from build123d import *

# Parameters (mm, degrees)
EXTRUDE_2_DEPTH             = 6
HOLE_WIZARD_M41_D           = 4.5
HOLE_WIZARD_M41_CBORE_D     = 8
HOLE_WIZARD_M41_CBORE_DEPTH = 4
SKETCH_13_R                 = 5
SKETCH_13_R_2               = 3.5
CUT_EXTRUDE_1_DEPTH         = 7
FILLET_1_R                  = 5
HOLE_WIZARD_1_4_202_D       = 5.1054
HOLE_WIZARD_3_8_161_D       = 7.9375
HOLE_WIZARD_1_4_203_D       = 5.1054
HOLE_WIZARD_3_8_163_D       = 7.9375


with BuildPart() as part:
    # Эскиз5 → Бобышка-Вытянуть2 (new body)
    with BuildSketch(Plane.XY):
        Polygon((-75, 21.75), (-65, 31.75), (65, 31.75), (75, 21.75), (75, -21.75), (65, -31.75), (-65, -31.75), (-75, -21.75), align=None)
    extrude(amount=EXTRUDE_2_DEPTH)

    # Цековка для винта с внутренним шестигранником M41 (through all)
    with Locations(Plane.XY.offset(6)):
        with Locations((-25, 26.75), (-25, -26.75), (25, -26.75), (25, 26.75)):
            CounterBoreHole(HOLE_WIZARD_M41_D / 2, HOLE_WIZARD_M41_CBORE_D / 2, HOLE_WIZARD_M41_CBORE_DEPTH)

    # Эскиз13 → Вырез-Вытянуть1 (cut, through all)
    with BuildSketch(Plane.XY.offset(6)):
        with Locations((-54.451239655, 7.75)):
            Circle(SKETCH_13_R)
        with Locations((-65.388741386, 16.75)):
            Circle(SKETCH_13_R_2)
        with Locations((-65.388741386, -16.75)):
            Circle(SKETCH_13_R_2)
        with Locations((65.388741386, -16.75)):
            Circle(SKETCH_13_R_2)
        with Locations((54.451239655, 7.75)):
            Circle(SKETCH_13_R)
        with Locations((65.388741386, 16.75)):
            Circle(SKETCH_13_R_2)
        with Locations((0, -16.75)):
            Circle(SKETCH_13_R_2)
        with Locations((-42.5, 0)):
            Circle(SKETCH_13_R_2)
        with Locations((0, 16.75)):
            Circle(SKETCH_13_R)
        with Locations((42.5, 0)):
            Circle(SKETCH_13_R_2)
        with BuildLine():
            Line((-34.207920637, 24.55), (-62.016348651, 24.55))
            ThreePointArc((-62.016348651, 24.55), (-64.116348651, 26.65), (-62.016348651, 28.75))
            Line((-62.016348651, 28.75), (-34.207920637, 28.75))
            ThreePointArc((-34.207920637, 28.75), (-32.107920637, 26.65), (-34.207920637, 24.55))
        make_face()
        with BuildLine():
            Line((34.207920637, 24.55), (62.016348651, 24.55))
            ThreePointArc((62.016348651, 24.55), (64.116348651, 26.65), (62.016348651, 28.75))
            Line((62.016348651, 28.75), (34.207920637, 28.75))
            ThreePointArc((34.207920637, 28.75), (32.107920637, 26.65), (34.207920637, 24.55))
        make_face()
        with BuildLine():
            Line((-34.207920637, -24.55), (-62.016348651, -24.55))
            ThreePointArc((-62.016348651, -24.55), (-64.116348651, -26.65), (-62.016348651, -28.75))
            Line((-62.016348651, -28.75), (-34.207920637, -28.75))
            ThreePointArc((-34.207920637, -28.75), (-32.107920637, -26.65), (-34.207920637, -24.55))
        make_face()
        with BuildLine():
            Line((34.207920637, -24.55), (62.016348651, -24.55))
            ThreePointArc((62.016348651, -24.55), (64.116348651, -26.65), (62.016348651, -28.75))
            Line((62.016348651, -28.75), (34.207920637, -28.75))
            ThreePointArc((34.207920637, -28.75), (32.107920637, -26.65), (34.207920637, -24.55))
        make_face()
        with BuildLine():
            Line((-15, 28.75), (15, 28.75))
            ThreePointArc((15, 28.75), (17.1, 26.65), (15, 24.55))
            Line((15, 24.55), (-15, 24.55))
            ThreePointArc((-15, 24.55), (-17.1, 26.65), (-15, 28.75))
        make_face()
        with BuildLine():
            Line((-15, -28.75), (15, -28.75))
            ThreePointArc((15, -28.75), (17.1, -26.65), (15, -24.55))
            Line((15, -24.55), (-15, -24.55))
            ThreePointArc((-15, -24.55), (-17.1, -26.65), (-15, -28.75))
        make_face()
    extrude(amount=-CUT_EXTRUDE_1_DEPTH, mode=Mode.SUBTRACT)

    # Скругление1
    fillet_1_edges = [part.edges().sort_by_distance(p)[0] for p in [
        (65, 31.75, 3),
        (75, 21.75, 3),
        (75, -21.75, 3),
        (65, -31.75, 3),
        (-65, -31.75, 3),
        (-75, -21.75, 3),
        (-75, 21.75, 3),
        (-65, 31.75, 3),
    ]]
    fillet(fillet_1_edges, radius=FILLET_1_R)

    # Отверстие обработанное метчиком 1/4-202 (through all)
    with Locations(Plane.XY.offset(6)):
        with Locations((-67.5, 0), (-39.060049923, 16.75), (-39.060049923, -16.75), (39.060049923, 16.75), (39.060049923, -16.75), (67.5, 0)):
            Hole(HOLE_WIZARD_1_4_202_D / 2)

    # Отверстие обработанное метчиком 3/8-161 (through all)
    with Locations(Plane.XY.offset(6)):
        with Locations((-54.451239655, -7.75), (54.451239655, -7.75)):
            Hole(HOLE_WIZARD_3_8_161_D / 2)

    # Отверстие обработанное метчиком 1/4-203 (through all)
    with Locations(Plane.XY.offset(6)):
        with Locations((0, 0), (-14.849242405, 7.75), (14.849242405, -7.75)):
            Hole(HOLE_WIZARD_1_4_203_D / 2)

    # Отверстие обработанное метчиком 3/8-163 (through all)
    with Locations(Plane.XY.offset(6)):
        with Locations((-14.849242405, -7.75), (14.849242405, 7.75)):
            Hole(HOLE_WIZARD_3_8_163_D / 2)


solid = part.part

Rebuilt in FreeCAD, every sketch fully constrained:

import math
import FreeCAD as App
import Part
import Sketcher
Q = App.Units.Quantity


def edges_at(feature, points):
    """Names of the edges that pass closest to the given points."""
    edges = feature.Shape.Edges
    near = lambda p: min(range(len(edges)), key=lambda i: edges[i].distToShape(Part.Vertex(*p))[0])
    return sorted({f"Edge{near(p) + 1}" for p in points})

doc = App.newDocument("Part")
params = doc.addObject("Spreadsheet::Sheet", "Params")
for row, (alias, value) in enumerate([
    ("sketch1_width", "130 mm"),
    ("sketch1_height", "43.5 mm"),
    ("pad1_length", "6 mm"),
    ("sketch2_diameter", "4.5 mm"),
    ("hole_diameter", "4.5 mm"),
    ("hole_cbore_diameter", "8 mm"),
    ("hole_cbore_depth", "4 mm"),
    ("sketch3_diameter", "10 mm"),
    ("sketch3_diameter2", "7 mm"),
    ("sketch3_radius", "2.1 mm"),
    ("sketch3_width", "30 mm"),
    ("fillet_radius", "5 mm"),
    ("hole2_diameter", "5.1054 mm"),
    ("hole3_diameter", "7.9375 mm"),
    ("hole4_diameter", "5.1054 mm"),
    ("hole5_diameter", "7.9375 mm"),
], start=1):
    params.set(f"A{row}", alias)
    params.set(f"B{row}", "=" + value)
    params.setAlias(f"B{row}", alias)

body = doc.addObject("PartDesign::Body", "Body")

# Sketch on XY plane
sketch1 = body.newObject("Sketcher::SketchObject", "Sketch")
sketch1.AttachmentSupport = (doc.getObject("XY_Plane"), [""])
sketch1.MapMode = "FlatFace"
sketch1.addGeometry([
    Part.LineSegment(App.Vector(-65, 31.75, 0), App.Vector(-75, 21.75, 0)),  # 0
    Part.LineSegment(App.Vector(-75, 21.75, 0), App.Vector(-75, -21.75, 0)),  # 1
    Part.LineSegment(App.Vector(-75, -21.75, 0), App.Vector(-65, -31.75, 0)),  # 2
    Part.LineSegment(App.Vector(-65, -31.75, 0), App.Vector(65, -31.75, 0)),  # 3
    Part.LineSegment(App.Vector(65, -31.75, 0), App.Vector(75, -21.75, 0)),  # 4
    Part.LineSegment(App.Vector(75, -21.75, 0), App.Vector(75, 21.75, 0)),  # 5
    Part.LineSegment(App.Vector(75, 21.75, 0), App.Vector(65, 31.75, 0)),  # 6
    Part.LineSegment(App.Vector(65, 31.75, 0), App.Vector(-65, 31.75, 0)),  # 7
], False)
sketch1.addConstraint([
    Sketcher.Constraint("Coincident", 0, 2, 1, 1),
    Sketcher.Constraint("Coincident", 1, 2, 2, 1),
    Sketcher.Constraint("Coincident", 2, 2, 3, 1),
    Sketcher.Constraint("Coincident", 3, 2, 4, 1),
    Sketcher.Constraint("Coincident", 4, 2, 5, 1),
    Sketcher.Constraint("Coincident", 5, 2, 6, 1),
    Sketcher.Constraint("Coincident", 6, 2, 7, 1),
    Sketcher.Constraint("Coincident", 7, 2, 0, 1),
    Sketcher.Constraint("Vertical", 1),
    Sketcher.Constraint("Horizontal", 3),
    Sketcher.Constraint("Vertical", 5),
    Sketcher.Constraint("Horizontal", 7),
    Sketcher.Constraint("Symmetric", 0, 2, 4, 2, -1, 1),
    Sketcher.Constraint("Symmetric", 2, 2, 6, 2, -1, 1),
    Sketcher.Constraint("Perpendicular", 0, 2),
    Sketcher.Constraint("Perpendicular", 2, 4),
    Sketcher.Constraint("Perpendicular", 4, 6),
    Sketcher.Constraint("Horizontal", 1, 2, 4, 2),
    Sketcher.Constraint("Vertical", 3, 2, 6, 2),
    Sketcher.Constraint("DistanceX", 3, 1, 3, 2, Q("130 mm")),
    Sketcher.Constraint("DistanceY", 1, 2, 1, 1, Q("43.5 mm")),
    Sketcher.Constraint("DistanceX", 0, 2, -1, 1, Q("75 mm")),
])
sketch1.setExpression("Constraints[19]", "Params.sketch1_width")
sketch1.setExpression("Constraints[20]", "Params.sketch1_height")
pad1 = body.newObject("PartDesign::Pad", "Pad")
pad1.Profile = sketch1
pad1.setExpression("Length", "Params.pad1_length")

# Sketch on XY plane
sketch2 = body.newObject("Sketcher::SketchObject", "Sketch001")
sketch2.AttachmentSupport = (doc.getObject("XY_Plane"), [""])
sketch2.MapMode = "FlatFace"
sketch2.AttachmentOffset = App.Placement(App.Vector(0, 0, 6), App.Rotation())
sketch2.addGeometry([
    Part.Circle(App.Vector(-25, 26.75, 0), App.Vector(0, 0, 1), 2.25),
    Part.Circle(App.Vector(-25, -26.75, 0), App.Vector(0, 0, 1), 2.25),
    Part.Circle(App.Vector(25, -26.75, 0), App.Vector(0, 0, 1), 2.25),
    Part.Circle(App.Vector(25, 26.75, 0), App.Vector(0, 0, 1), 2.25),
], False)
sketch2.addConstraint([
    Sketcher.Constraint("Equal", 0, 1),
    Sketcher.Constraint("Equal", 1, 2),
    Sketcher.Constraint("Equal", 2, 3),
    Sketcher.Constraint("Symmetric", 0, 3, 2, 3, -1, 1),
    Sketcher.Constraint("Symmetric", 1, 3, 3, 3, -1, 1),
    Sketcher.Constraint("Symmetric", 1, 3, 2, 3, -2),
    Sketcher.Constraint("Diameter", 0, Q("4.5 mm")),
    Sketcher.Constraint("DistanceX", 0, 3, -1, 1, Q("25 mm")),
    Sketcher.Constraint("DistanceY", 1, 3, 0, 3, Q("53.5 mm")),
])
sketch2.setExpression("Constraints[6]", "Params.sketch2_diameter")
doc.recompute()
hole = body.newObject("PartDesign::Hole", "Hole")
hole.Profile = sketch2
hole.ThreadType = "None"
hole.setExpression("Diameter", "Params.hole_diameter")
hole.DepthType = "ThroughAll"
hole.HoleCutType = "Counterbore"
hole.setExpression("HoleCutDiameter", "Params.hole_cbore_diameter")
hole.setExpression("HoleCutDepth", "Params.hole_cbore_depth")

# Sketch on XY plane
sketch3 = body.newObject("Sketcher::SketchObject", "Sketch002")
sketch3.AttachmentSupport = (doc.getObject("XY_Plane"), [""])
sketch3.MapMode = "FlatFace"
sketch3.AttachmentOffset = App.Placement(App.Vector(0, 0, 6), App.Rotation())
sketch3.addGeometry([
    Part.Circle(App.Vector(-54.45124, 7.75, 0), App.Vector(0, 0, 1), 5),  # 0
    Part.Circle(App.Vector(-65.388741, 16.75, 0), App.Vector(0, 0, 1), 3.5),  # 1
    Part.Circle(App.Vector(-65.388741, -16.75, 0), App.Vector(0, 0, 1), 3.5),  # 2
    Part.Circle(App.Vector(65.388741, -16.75, 0), App.Vector(0, 0, 1), 3.5),  # 3
    Part.Circle(App.Vector(54.45124, 7.75, 0), App.Vector(0, 0, 1), 5),  # 4
    Part.Circle(App.Vector(65.388741, 16.75, 0), App.Vector(0, 0, 1), 3.5),  # 5
    Part.Circle(App.Vector(0, -16.75, 0), App.Vector(0, 0, 1), 3.5),  # 6
    Part.Circle(App.Vector(-42.5, 0, 0), App.Vector(0, 0, 1), 3.5),  # 7
    Part.Circle(App.Vector(0, 16.75, 0), App.Vector(0, 0, 1), 5),  # 8
    Part.Circle(App.Vector(42.5, 0, 0), App.Vector(0, 0, 1), 3.5),  # 9
    Part.LineSegment(App.Vector(-62.016349, 24.55, 0), App.Vector(-34.207921, 24.55, 0)),  # 10
    Part.ArcOfCircle(Part.Circle(App.Vector(-34.207921, 26.65, 0), App.Vector(0, 0, 1), 2.1), math.radians(-90), math.radians(90)),  # 11
    Part.LineSegment(App.Vector(-34.207921, 28.75, 0), App.Vector(-62.016349, 28.75, 0)),  # 12
    Part.ArcOfCircle(Part.Circle(App.Vector(-62.016349, 26.65, 0), App.Vector(0, 0, 1), 2.1), math.radians(90), math.radians(270)),  # 13
    Part.LineSegment(App.Vector(34.207921, 24.55, 0), App.Vector(62.016349, 24.55, 0)),  # 14
    Part.ArcOfCircle(Part.Circle(App.Vector(62.016349, 26.65, 0), App.Vector(0, 0, 1), 2.1), math.radians(-90), math.radians(90)),  # 15
    Part.LineSegment(App.Vector(62.016349, 28.75, 0), App.Vector(34.207921, 28.75, 0)),  # 16
    Part.ArcOfCircle(Part.Circle(App.Vector(34.207921, 26.65, 0), App.Vector(0, 0, 1), 2.1), math.radians(90), math.radians(270)),  # 17
    Part.LineSegment(App.Vector(-34.207921, -24.55, 0), App.Vector(-62.016349, -24.55, 0)),  # 18
    Part.ArcOfCircle(Part.Circle(App.Vector(-62.016349, -26.65, 0), App.Vector(0, 0, 1), 2.1), math.radians(90), math.radians(270)),  # 19
    Part.LineSegment(App.Vector(-62.016349, -28.75, 0), App.Vector(-34.207921, -28.75, 0)),  # 20
    Part.ArcOfCircle(Part.Circle(App.Vector(-34.207921, -26.65, 0), App.Vector(0, 0, 1), 2.1), math.radians(-90), math.radians(90)),  # 21
    Part.LineSegment(App.Vector(62.016349, -24.55, 0), App.Vector(34.207921, -24.55, 0)),  # 22
    Part.ArcOfCircle(Part.Circle(App.Vector(34.207921, -26.65, 0), App.Vector(0, 0, 1), 2.1), math.radians(90), math.radians(270)),  # 23
    Part.LineSegment(App.Vector(34.207921, -28.75, 0), App.Vector(62.016349, -28.75, 0)),  # 24
    Part.ArcOfCircle(Part.Circle(App.Vector(62.016349, -26.65, 0), App.Vector(0, 0, 1), 2.1), math.radians(-90), math.radians(90)),  # 25
    Part.LineSegment(App.Vector(15, 28.75, 0), App.Vector(-15, 28.75, 0)),  # 26
    Part.ArcOfCircle(Part.Circle(App.Vector(-15, 26.65, 0), App.Vector(0, 0, 1), 2.1), math.radians(90), math.radians(270)),  # 27
    Part.LineSegment(App.Vector(-15, 24.55, 0), App.Vector(15, 24.55, 0)),  # 28
    Part.ArcOfCircle(Part.Circle(App.Vector(15, 26.65, 0), App.Vector(0, 0, 1), 2.1), math.radians(-90), math.radians(90)),  # 29
    Part.LineSegment(App.Vector(-15, -28.75, 0), App.Vector(15, -28.75, 0)),  # 30
    Part.ArcOfCircle(Part.Circle(App.Vector(15, -26.65, 0), App.Vector(0, 0, 1), 2.1), math.radians(-90), math.radians(90)),  # 31
    Part.LineSegment(App.Vector(15, -24.55, 0), App.Vector(-15, -24.55, 0)),  # 32
    Part.ArcOfCircle(Part.Circle(App.Vector(-15, -26.65, 0), App.Vector(0, 0, 1), 2.1), math.radians(90), math.radians(270)),  # 33
], False)
sketch3.addConstraint([
    Sketcher.Constraint("Tangent", 10, 2, 11, 1),
    Sketcher.Constraint("Tangent", 11, 2, 12, 1),
    Sketcher.Constraint("Tangent", 12, 2, 13, 1),
    Sketcher.Constraint("Tangent", 13, 2, 10, 1),
    Sketcher.Constraint("Tangent", 14, 2, 15, 1),
    Sketcher.Constraint("Tangent", 15, 2, 16, 1),
    Sketcher.Constraint("Tangent", 16, 2, 17, 1),
    Sketcher.Constraint("Tangent", 17, 2, 14, 1),
    Sketcher.Constraint("Tangent", 18, 2, 19, 1),
    Sketcher.Constraint("Tangent", 19, 2, 20, 1),
    Sketcher.Constraint("Tangent", 20, 2, 21, 1),
    Sketcher.Constraint("Tangent", 21, 2, 18, 1),
    Sketcher.Constraint("Tangent", 22, 2, 23, 1),
    Sketcher.Constraint("Tangent", 23, 2, 24, 1),
    Sketcher.Constraint("Tangent", 24, 2, 25, 1),
    Sketcher.Constraint("Tangent", 25, 2, 22, 1),
    Sketcher.Constraint("Tangent", 26, 2, 27, 1),
    Sketcher.Constraint("Tangent", 27, 2, 28, 1),
    Sketcher.Constraint("Tangent", 28, 2, 29, 1),
    Sketcher.Constraint("Tangent", 29, 2, 26, 1),
    Sketcher.Constraint("Tangent", 30, 2, 31, 1),
    Sketcher.Constraint("Tangent", 31, 2, 32, 1),
    Sketcher.Constraint("Tangent", 32, 2, 33, 1),
    Sketcher.Constraint("Tangent", 33, 2, 30, 1),
    Sketcher.Constraint("Horizontal", 10),
    Sketcher.Constraint("Horizontal", 12),
    Sketcher.Constraint("Horizontal", 14),
    Sketcher.Constraint("Horizontal", 16),
    Sketcher.Constraint("Horizontal", 18),
    Sketcher.Constraint("Horizontal", 20),
    Sketcher.Constraint("Horizontal", 22),
    Sketcher.Constraint("Horizontal", 24),
    Sketcher.Constraint("Horizontal", 26),
    Sketcher.Constraint("Horizontal", 28),
    Sketcher.Constraint("Horizontal", 30),
    Sketcher.Constraint("Horizontal", 32),
    Sketcher.Constraint("Equal", 1, 2),
    Sketcher.Constraint("Equal", 2, 3),
    Sketcher.Constraint("Equal", 0, 4),
    Sketcher.Constraint("Equal", 3, 5),
    Sketcher.Constraint("Equal", 5, 6),
    Sketcher.Constraint("Equal", 6, 7),
    Sketcher.Constraint("Equal", 4, 8),
    Sketcher.Constraint("Equal", 7, 9),
    Sketcher.Constraint("Equal", 13, 15),
    Sketcher.Constraint("Equal", 17, 19),
    Sketcher.Constraint("Equal", 21, 23),
    Sketcher.Constraint("Equal", 25, 27),
    Sketcher.Constraint("Equal", 29, 31),
    Sketcher.Constraint("Symmetric", 1, 3, 3, 3, -1, 1),
    Sketcher.Constraint("Symmetric", 2, 3, 5, 3, -1, 1),
    Sketcher.Constraint("Symmetric", 6, 3, 8, 3, -1, 1),
    Sketcher.Constraint("Symmetric", 7, 3, 9, 3, -1, 1),
    Sketcher.Constraint("Symmetric", 15, 3, 19, 3, -1, 1),
    Sketcher.Constraint("Symmetric", 11, 3, 23, 3, -1, 1),
    Sketcher.Constraint("Symmetric", 27, 3, 31, 3, -1, 1),
    Sketcher.Constraint("Symmetric", 2, 3, 3, 3, -2),
    Sketcher.Constraint("Symmetric", 0, 3, 4, 3, -2),
    Sketcher.Constraint("Symmetric", 13, 3, 15, 3, -2),
    Sketcher.Constraint("PointOnObject", 6, 3, -2),
    Sketcher.Constraint("PointOnObject", 7, 3, -1),
    Sketcher.Constraint("Horizontal", 3, 3, 6, 3),
    Sketcher.Constraint("Horizontal", 17, 3, 27, 3),
    Sketcher.Constraint("Vertical", 11, 3, 21, 3),
    Sketcher.Constraint("Vertical", 17, 3, 23, 3),
    Sketcher.Constraint("Vertical", 15, 3, 25, 3),
    Sketcher.Constraint("Vertical", 29, 3, 31, 3),
    Sketcher.Constraint("Vertical", 27, 3, 33, 3),
    Sketcher.Constraint("Diameter", 0, Q("10 mm")),
    Sketcher.Constraint("Diameter", 1, Q("7 mm")),
    Sketcher.Constraint("Radius", 11, Q("2.1 mm")),
    Sketcher.Constraint("DistanceX", 26, 2, 26, 1, Q("30 mm")),
    Sketcher.Constraint("DistanceY", 0, 3, 1, 3, Q("9 mm")),
    Sketcher.Constraint("DistanceY", 0, 3, 11, 2, Q("21 mm")),
    Sketcher.Constraint("DistanceX", 7, 3, -1, 1, Q("42.5 mm")),
    Sketcher.Constraint("DistanceY", 2, 3, 0, 3, Q("24.5 mm")),
    Sketcher.Constraint("DistanceX", 10, 1, 10, 2, Q("27.808428 mm")),
    Sketcher.Constraint("DistanceX", 1, 3, 0, 3, Q("10.937502 mm")),
    Sketcher.Constraint("DistanceX", 0, 3, -1, 1, Q("54.45124 mm")),
    Sketcher.Constraint("DistanceX", 11, 3, -1, 1, Q("34.207921 mm")),
])
sketch3.setExpression("Constraints[68]", "Params.sketch3_diameter")
sketch3.setExpression("Constraints[69]", "Params.sketch3_diameter2")
sketch3.setExpression("Constraints[70]", "Params.sketch3_radius")
sketch3.setExpression("Constraints[71]", "Params.sketch3_width")
pocket1 = body.newObject("PartDesign::Pocket", "Pocket")
pocket1.Profile = sketch3
pocket1.Type = "ThroughAll"
doc.recompute()

fillet = body.newObject("PartDesign::Fillet", "Fillet")
fillet.Base = (pocket1, edges_at(pocket1, [
    (65, 31.75, 3),
    (75, 21.75, 3),
    (75, -21.75, 3),
    (65, -31.75, 3),
    (-65, -31.75, 3),
    (-75, -21.75, 3),
    (-75, 21.75, 3),
    (-65, 31.75, 3),
]))
fillet.setExpression("Radius", "Params.fillet_radius")

# Sketch on XY plane
sketch4 = body.newObject("Sketcher::SketchObject", "Sketch003")
sketch4.AttachmentSupport = (doc.getObject("XY_Plane"), [""])
sketch4.MapMode = "FlatFace"
sketch4.AttachmentOffset = App.Placement(App.Vector(0, 0, 6), App.Rotation())
sketch4.addGeometry([
    Part.Circle(App.Vector(-67.5, 0, 0), App.Vector(0, 0, 1), 2.5527),  # 0
    Part.Circle(App.Vector(-39.06005, 16.75, 0), App.Vector(0, 0, 1), 2.5527),  # 1
    Part.Circle(App.Vector(-39.06005, -16.75, 0), App.Vector(0, 0, 1), 2.5527),  # 2
    Part.Circle(App.Vector(39.06005, 16.75, 0), App.Vector(0, 0, 1), 2.5527),  # 3
    Part.Circle(App.Vector(39.06005, -16.75, 0), App.Vector(0, 0, 1), 2.5527),  # 4
    Part.Circle(App.Vector(67.5, 0, 0), App.Vector(0, 0, 1), 2.5527),  # 5
], False)
sketch4.addConstraint([
    Sketcher.Constraint("Equal", 0, 1),
    Sketcher.Constraint("Equal", 1, 2),
    Sketcher.Constraint("Equal", 2, 3),
    Sketcher.Constraint("Equal", 3, 4),
    Sketcher.Constraint("Equal", 4, 5),
    Sketcher.Constraint("Symmetric", 2, 3, 3, 3, -1, 1),
    Sketcher.Constraint("Symmetric", 1, 3, 4, 3, -1, 1),
    Sketcher.Constraint("Symmetric", 0, 3, 5, 3, -1, 1),
    Sketcher.Constraint("Symmetric", 1, 3, 3, 3, -2),
    Sketcher.Constraint("PointOnObject", 0, 3, -1),
    Sketcher.Constraint("DistanceX", 0, 3, 5, 3, Q("135 mm")),
    Sketcher.Constraint("Diameter", 0, Q("5.1054 mm")),
    Sketcher.Constraint("DistanceY", 2, 3, 1, 3, Q("33.5 mm")),
    Sketcher.Constraint("DistanceX", 1, 3, 3, 3, Q("78.1201 mm")),
])
doc.recompute()
hole2 = body.newObject("PartDesign::Hole", "Hole001")
hole2.Profile = sketch4
hole2.ThreadType = "None"
hole2.setExpression("Diameter", "Params.hole2_diameter")
hole2.DepthType = "ThroughAll"

# Sketch on XY plane
sketch5 = body.newObject("Sketcher::SketchObject", "Sketch004")
sketch5.AttachmentSupport = (doc.getObject("XY_Plane"), [""])
sketch5.MapMode = "FlatFace"
sketch5.AttachmentOffset = App.Placement(App.Vector(0, 0, 6), App.Rotation())
sketch5.addGeometry([
    Part.Circle(App.Vector(-54.45124, -7.75, 0), App.Vector(0, 0, 1), 3.96875),
    Part.Circle(App.Vector(54.45124, -7.75, 0), App.Vector(0, 0, 1), 3.96875),
], False)
sketch5.addConstraint([
    Sketcher.Constraint("Equal", 0, 1),
    Sketcher.Constraint("Symmetric", 0, 3, 1, 3, -2),
    Sketcher.Constraint("Diameter", 0, Q("7.9375 mm")),
    Sketcher.Constraint("DistanceY", 0, 3, -1, 1, Q("7.75 mm")),
    Sketcher.Constraint("DistanceX", 0, 3, -1, 1, Q("54.45124 mm")),
])
doc.recompute()
hole3 = body.newObject("PartDesign::Hole", "Hole002")
hole3.Profile = sketch5
hole3.ThreadType = "None"
hole3.setExpression("Diameter", "Params.hole3_diameter")
hole3.DepthType = "ThroughAll"

# Sketch on XY plane
sketch6 = body.newObject("Sketcher::SketchObject", "Sketch005")
sketch6.AttachmentSupport = (doc.getObject("XY_Plane"), [""])
sketch6.MapMode = "FlatFace"
sketch6.AttachmentOffset = App.Placement(App.Vector(0, 0, 6), App.Rotation())
sketch6.addGeometry([
    Part.Circle(App.Vector(0, 0, 0), App.Vector(0, 0, 1), 2.5527),
    Part.Circle(App.Vector(-14.849242, 7.75, 0), App.Vector(0, 0, 1), 2.5527),
    Part.Circle(App.Vector(14.849242, -7.75, 0), App.Vector(0, 0, 1), 2.5527),
], False)
sketch6.addConstraint([
    Sketcher.Constraint("Coincident", 0, 3, -1, 1),
    Sketcher.Constraint("Equal", 0, 1),
    Sketcher.Constraint("Equal", 1, 2),
    Sketcher.Constraint("Symmetric", 1, 3, 2, 3, -1, 1),
    Sketcher.Constraint("Diameter", 0, Q("5.1054 mm")),
    Sketcher.Constraint("DistanceY", 2, 3, 1, 3, Q("15.5 mm")),
    Sketcher.Constraint("DistanceX", 1, 3, -1, 1, Q("14.849242 mm")),
])
doc.recompute()
hole4 = body.newObject("PartDesign::Hole", "Hole003")
hole4.Profile = sketch6
hole4.ThreadType = "None"
hole4.setExpression("Diameter", "Params.hole4_diameter")
hole4.DepthType = "ThroughAll"

# Sketch on XY plane
sketch7 = body.newObject("Sketcher::SketchObject", "Sketch006")
sketch7.AttachmentSupport = (doc.getObject("XY_Plane"), [""])
sketch7.MapMode = "FlatFace"
sketch7.AttachmentOffset = App.Placement(App.Vector(0, 0, 6), App.Rotation())
sketch7.addGeometry([
    Part.Circle(App.Vector(-14.849242, -7.75, 0), App.Vector(0, 0, 1), 3.96875),
    Part.Circle(App.Vector(14.849242, 7.75, 0), App.Vector(0, 0, 1), 3.96875),
], False)
sketch7.addConstraint([
    Sketcher.Constraint("Equal", 0, 1),
    Sketcher.Constraint("Symmetric", 0, 3, 1, 3, -1, 1),
    Sketcher.Constraint("Diameter", 0, Q("7.9375 mm")),
    Sketcher.Constraint("DistanceY", 0, 3, 1, 3, Q("15.5 mm")),
    Sketcher.Constraint("DistanceX", 0, 3, -1, 1, Q("14.849242 mm")),
])
doc.recompute()
hole5 = body.newObject("PartDesign::Hole", "Hole004")
hole5.Profile = sketch7
hole5.ThreadType = "None"
hole5.setExpression("Diameter", "Params.hole5_diameter")
hole5.DepthType = "ThroughAll"

doc.recompute()
